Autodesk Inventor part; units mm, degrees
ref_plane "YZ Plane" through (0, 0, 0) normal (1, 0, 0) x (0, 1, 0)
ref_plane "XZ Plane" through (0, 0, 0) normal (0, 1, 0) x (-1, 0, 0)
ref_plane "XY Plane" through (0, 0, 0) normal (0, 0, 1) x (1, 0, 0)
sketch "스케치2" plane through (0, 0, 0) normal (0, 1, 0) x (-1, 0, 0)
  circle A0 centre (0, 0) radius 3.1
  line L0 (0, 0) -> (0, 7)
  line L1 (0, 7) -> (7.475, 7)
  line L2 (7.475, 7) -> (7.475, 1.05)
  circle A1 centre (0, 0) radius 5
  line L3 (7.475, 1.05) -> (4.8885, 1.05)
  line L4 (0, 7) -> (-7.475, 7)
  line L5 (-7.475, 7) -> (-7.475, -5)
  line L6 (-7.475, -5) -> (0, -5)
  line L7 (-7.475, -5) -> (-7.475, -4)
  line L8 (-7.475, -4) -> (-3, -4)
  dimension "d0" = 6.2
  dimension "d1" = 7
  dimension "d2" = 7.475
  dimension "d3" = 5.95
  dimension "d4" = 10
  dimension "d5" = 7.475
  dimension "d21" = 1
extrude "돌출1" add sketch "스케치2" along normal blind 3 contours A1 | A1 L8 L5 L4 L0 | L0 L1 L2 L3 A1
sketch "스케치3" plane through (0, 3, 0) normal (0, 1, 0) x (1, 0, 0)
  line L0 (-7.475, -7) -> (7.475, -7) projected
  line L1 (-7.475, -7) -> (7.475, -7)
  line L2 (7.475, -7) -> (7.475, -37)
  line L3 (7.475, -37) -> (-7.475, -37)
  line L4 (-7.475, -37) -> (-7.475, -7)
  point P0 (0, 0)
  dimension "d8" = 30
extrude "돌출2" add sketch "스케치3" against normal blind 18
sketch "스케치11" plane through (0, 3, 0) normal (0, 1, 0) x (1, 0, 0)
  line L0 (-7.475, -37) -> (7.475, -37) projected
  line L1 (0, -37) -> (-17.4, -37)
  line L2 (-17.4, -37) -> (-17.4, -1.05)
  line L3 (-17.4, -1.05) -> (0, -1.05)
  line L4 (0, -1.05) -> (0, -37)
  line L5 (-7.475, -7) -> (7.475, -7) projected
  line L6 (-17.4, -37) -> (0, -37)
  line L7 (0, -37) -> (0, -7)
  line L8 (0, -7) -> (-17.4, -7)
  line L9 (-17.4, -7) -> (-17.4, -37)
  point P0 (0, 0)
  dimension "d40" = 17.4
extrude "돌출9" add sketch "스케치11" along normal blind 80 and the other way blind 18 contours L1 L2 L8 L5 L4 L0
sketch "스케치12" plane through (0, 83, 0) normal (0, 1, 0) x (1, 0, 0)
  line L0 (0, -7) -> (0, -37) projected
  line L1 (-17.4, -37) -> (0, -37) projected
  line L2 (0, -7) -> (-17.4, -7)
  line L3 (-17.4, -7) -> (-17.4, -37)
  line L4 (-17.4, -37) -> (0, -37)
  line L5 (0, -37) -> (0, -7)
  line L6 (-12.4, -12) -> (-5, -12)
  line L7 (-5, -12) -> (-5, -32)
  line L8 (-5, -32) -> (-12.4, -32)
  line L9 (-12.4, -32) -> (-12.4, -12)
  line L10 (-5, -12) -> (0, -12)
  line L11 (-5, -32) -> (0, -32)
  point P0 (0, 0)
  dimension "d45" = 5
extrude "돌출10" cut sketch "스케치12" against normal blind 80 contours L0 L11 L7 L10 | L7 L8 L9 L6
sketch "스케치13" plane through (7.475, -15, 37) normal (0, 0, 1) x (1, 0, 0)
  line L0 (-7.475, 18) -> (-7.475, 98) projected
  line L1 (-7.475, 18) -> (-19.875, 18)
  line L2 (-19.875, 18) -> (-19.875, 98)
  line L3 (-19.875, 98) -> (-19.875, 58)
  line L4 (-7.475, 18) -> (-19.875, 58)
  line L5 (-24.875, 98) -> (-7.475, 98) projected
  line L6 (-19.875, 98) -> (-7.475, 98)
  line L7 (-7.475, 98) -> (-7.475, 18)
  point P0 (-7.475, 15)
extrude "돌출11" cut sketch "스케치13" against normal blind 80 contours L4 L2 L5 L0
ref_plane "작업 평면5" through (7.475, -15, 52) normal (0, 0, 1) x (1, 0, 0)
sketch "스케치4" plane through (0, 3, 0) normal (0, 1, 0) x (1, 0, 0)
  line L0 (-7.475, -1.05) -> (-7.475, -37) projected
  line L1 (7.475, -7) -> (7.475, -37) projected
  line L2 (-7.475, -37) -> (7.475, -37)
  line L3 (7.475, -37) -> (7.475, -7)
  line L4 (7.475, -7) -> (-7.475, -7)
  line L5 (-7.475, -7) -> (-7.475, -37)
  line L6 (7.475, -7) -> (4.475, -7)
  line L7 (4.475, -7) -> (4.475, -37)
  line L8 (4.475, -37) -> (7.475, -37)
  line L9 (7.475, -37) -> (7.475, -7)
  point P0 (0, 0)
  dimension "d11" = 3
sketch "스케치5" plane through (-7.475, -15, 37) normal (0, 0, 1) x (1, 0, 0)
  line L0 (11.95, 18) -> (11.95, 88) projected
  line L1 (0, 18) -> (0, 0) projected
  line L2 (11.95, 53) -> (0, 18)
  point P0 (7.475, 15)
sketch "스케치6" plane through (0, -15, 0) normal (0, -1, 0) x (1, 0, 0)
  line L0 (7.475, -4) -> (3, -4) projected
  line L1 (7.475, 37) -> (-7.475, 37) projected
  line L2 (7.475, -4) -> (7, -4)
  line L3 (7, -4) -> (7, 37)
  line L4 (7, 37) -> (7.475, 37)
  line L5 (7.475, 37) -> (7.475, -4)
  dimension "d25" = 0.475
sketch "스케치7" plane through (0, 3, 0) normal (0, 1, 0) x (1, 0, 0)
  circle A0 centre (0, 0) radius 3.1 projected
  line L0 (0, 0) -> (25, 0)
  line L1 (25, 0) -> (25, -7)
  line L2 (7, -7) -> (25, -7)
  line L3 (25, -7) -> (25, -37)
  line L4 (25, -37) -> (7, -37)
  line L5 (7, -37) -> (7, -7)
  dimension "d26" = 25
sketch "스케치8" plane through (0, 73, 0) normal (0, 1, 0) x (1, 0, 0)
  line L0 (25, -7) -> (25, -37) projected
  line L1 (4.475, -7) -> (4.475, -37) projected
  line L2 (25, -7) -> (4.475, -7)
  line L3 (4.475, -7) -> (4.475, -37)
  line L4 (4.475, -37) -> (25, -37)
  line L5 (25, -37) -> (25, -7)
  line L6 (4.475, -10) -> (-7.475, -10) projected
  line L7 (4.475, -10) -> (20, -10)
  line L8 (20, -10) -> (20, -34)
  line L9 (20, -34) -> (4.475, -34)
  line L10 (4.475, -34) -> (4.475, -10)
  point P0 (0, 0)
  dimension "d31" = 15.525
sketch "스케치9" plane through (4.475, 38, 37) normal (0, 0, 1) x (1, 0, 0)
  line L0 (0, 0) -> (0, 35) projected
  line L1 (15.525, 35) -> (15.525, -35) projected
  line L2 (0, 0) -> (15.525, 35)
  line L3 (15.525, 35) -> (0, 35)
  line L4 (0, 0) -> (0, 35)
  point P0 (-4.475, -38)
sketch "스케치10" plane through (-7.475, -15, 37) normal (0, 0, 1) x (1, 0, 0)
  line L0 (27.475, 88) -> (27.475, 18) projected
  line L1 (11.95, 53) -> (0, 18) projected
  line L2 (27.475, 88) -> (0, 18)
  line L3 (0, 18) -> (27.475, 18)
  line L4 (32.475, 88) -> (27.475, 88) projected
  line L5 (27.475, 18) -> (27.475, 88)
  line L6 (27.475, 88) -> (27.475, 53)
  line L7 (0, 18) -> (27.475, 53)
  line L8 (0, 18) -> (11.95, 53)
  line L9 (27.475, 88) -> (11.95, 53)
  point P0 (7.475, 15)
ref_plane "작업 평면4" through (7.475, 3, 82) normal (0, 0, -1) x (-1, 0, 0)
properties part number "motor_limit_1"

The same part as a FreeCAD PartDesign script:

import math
import FreeCAD as App
import Part
import Sketcher

V = App.Vector
Q = App.Units.Quantity


def add_polygon(sketch, points):
    """Adds a closed chain of lines whose ends are joined by coincident constraints."""
    first, n = sketch.GeometryCount, len(points)
    for a, b in zip(points, points[1:] + points[:1]):
        sketch.addGeometry(Part.LineSegment(App.Vector(*a, 0), App.Vector(*b, 0)), False)
    for i in range(n):
        sketch.addConstraint(Sketcher.Constraint("Coincident", first + i, 2, first + (i + 1) % n, 1))

doc = App.newDocument("Part")
body = doc.addObject("PartDesign::Body", "Body")

# Sketch on XZ plane
sketch1 = body.newObject("Sketcher::SketchObject", "Sketch")
sketch1.AttachmentSupport = (doc.getObject("XZ_Plane"), [""])
sketch1.MapMode = "FlatFace"
sketch1.addGeometry(Part.LineSegment(V(-4.8885, 1.05, 0), V(-7.475, 1.05, 0)), False)
sketch1.addGeometry(Part.LineSegment(V(-7.475, 1.05, 0), V(-7.475, 7, 0)), False)
sketch1.addGeometry(Part.LineSegment(V(-7.475, 7, 0), V(7.475, 7, 0)), False)
sketch1.addGeometry(Part.LineSegment(V(7.475, 7, 0), V(7.475, -4, 0)), False)
sketch1.addGeometry(Part.LineSegment(V(7.475, -4, 0), V(3, -4, 0)), False)
sketch1.addGeometry(Part.ArcOfCircle(Part.Circle(V(0, 0, 0), V(0, 0, 1), 5), math.radians(167.877631), math.radians(306.869898)), False)
sketch1.addGeometry(Part.Circle(V(0, 0, 0), V(0, 0, 1), 3.1), False)
sketch1.addConstraint(Sketcher.Constraint("Coincident", 0, 2, 1, 1))
sketch1.addConstraint(Sketcher.Constraint("Coincident", 1, 2, 2, 1))
sketch1.addConstraint(Sketcher.Constraint("Coincident", 2, 2, 3, 1))
sketch1.addConstraint(Sketcher.Constraint("Coincident", 3, 2, 4, 1))
sketch1.addConstraint(Sketcher.Constraint("Coincident", 4, 2, 5, 2))
sketch1.addConstraint(Sketcher.Constraint("Coincident", 5, 1, 0, 1))
sketch1.addConstraint(Sketcher.Constraint("Horizontal", 0))
sketch1.addConstraint(Sketcher.Constraint("Vertical", 1))
sketch1.addConstraint(Sketcher.Constraint("Horizontal", 2))
sketch1.addConstraint(Sketcher.Constraint("Vertical", 3))
sketch1.addConstraint(Sketcher.Constraint("Horizontal", 4))
sketch1.addConstraint(Sketcher.Constraint("Coincident", 5, 3, -1, 1))
sketch1.addConstraint(Sketcher.Constraint("Coincident", 6, 3, -1, 1))
sketch1.addConstraint(Sketcher.Constraint("Radius", 5, Q("5 mm")))
sketch1.addConstraint(Sketcher.Constraint("Diameter", 6, Q("6.2 mm")))
sketch1.addConstraint(Sketcher.Constraint("DistanceY", -1, 1, 1, 2, Q("7 mm")))
sketch1.addConstraint(Sketcher.Constraint("DistanceY", 1, 1, 1, 2, Q("5.95 mm")))
sketch1.addConstraint(Sketcher.Constraint("DistanceY", 3, 2, 3, 1, Q("11 mm")))
sketch1.addConstraint(Sketcher.Constraint("DistanceX", 0, 2, -1, 1, Q("7.475 mm")))
sketch1.addConstraint(Sketcher.Constraint("DistanceX", -1, 1, 2, 2, Q("7.475 mm")))
pad1 = body.newObject("PartDesign::Pad", "Pad")
pad1.Profile = sketch1
pad1.Length = 3
pad1.Reversed = True

# Sketch on XZ plane
sketch2 = body.newObject("Sketcher::SketchObject", "Sketch001")
sketch2.AttachmentSupport = (doc.getObject("XZ_Plane"), [""])
sketch2.MapMode = "FlatFace"
sketch2.AttachmentOffset = App.Placement(V(0, 0, -3), App.Rotation())
add_polygon(sketch2, [(7.475, 7), (-7.475, 7), (-7.475, 37), (7.475, 37)])  # lines 0-3
sketch2.addConstraint(Sketcher.Constraint("Horizontal", 0))
sketch2.addConstraint(Sketcher.Constraint("Vertical", 1))
sketch2.addConstraint(Sketcher.Constraint("Horizontal", 2))
sketch2.addConstraint(Sketcher.Constraint("Vertical", 3))
sketch2.addConstraint(Sketcher.Constraint("DistanceY", 1, 1, 1, 2, Q("30 mm")))
sketch2.addConstraint(Sketcher.Constraint("DistanceY", -1, 1, 0, 2, Q("7 mm")))
sketch2.addConstraint(Sketcher.Constraint("DistanceX", 0, 2, 0, 1, Q("14.95 mm")))
sketch2.addConstraint(Sketcher.Constraint("DistanceX", 0, 2, -1, 1, Q("7.475 mm")))
pad2 = body.newObject("PartDesign::Pad", "Pad001")
pad2.Profile = sketch2
pad2.Length = 18

# Sketch on XZ plane
sketch3 = body.newObject("Sketcher::SketchObject", "Sketch002")
sketch3.AttachmentSupport = (doc.getObject("XZ_Plane"), [""])
sketch3.MapMode = "FlatFace"
sketch3.AttachmentOffset = App.Placement(V(0, 0, -3), App.Rotation())
add_polygon(sketch3, [(-17.4, 37), (0, 37), (0, 7), (-17.4, 7)])  # lines 0-3
sketch3.addConstraint(Sketcher.Constraint("Horizontal", 0))
sketch3.addConstraint(Sketcher.Constraint("Vertical", 1))
sketch3.addConstraint(Sketcher.Constraint("Horizontal", 2))
sketch3.addConstraint(Sketcher.Constraint("Vertical", 3))
sketch3.addConstraint(Sketcher.Constraint("PointOnObject", 0, 2, -2))
sketch3.addConstraint(Sketcher.Constraint("DistanceX", 0, 1, 0, 2, Q("17.4 mm")))
sketch3.addConstraint(Sketcher.Constraint("DistanceY", 1, 2, 1, 1, Q("30 mm")))
sketch3.addConstraint(Sketcher.Constraint("DistanceY", -1, 1, 0, 2, Q("37 mm")))
pad3 = body.newObject("PartDesign::Pad", "Pad002")
pad3.Profile = sketch3
pad3.Type = "TwoLengths"
pad3.Length = 80
pad3.Length2 = 18
pad3.Reversed = True

# Sketch on XZ plane
sketch4 = body.newObject("Sketcher::SketchObject", "Sketch003")
sketch4.AttachmentSupport = (doc.getObject("XZ_Plane"), [""])
sketch4.MapMode = "FlatFace"
sketch4.AttachmentOffset = App.Placement(V(0, 0, -83), App.Rotation())
add_polygon(sketch4, [(0, 32), (0, 12), (-12.4, 12), (-12.4, 32)])  # lines 0-3
sketch4.addConstraint(Sketcher.Constraint("Vertical", 0))
sketch4.addConstraint(Sketcher.Constraint("Horizontal", 1))
sketch4.addConstraint(Sketcher.Constraint("Vertical", 2))
sketch4.addConstraint(Sketcher.Constraint("Horizontal", 3))
sketch4.addConstraint(Sketcher.Constraint("PointOnObject", 0, 2, -2))
sketch4.addConstraint(Sketcher.Constraint("DistanceY", 0, 2, 0, 1, Q("20 mm")))
sketch4.addConstraint(Sketcher.Constraint("DistanceX", 1, 2, 1, 1, Q("12.4 mm")))
sketch4.addConstraint(Sketcher.Constraint("DistanceY", -1, 1, 0, 2, Q("12 mm")))
pocket1 = body.newObject("PartDesign::Pocket", "Pocket")
pocket1.Profile = sketch4
pocket1.Length = 80
pocket1.Reversed = True

# Sketch on XY plane
sketch5 = body.newObject("Sketcher::SketchObject", "Sketch004")
sketch5.AttachmentSupport = (doc.getObject("XY_Plane"), [""])
sketch5.MapMode = "FlatFace"
sketch5.AttachmentOffset = App.Placement(V(0, 0, 37), App.Rotation())
add_polygon(sketch5, [(-12.4, 43), (0, 3), (0, 83), (-12.4, 83)])  # lines 0-3
sketch5.addConstraint(Sketcher.Constraint("Vertical", 1))
sketch5.addConstraint(Sketcher.Constraint("Horizontal", 2))
sketch5.addConstraint(Sketcher.Constraint("Vertical", 3))
sketch5.addConstraint(Sketcher.Constraint("PointOnObject", 0, 2, -2))
sketch5.addConstraint(Sketcher.Constraint("DistanceY", 1, 1, 1, 2, Q("80 mm")))
sketch5.addConstraint(Sketcher.Constraint("DistanceY", 3, 2, 3, 1, Q("40 mm")))
sketch5.addConstraint(Sketcher.Constraint("DistanceX", 2, 2, 2, 1, Q("12.4 mm")))
sketch5.addConstraint(Sketcher.Constraint("DistanceY", -1, 1, 0, 2, Q("3 mm")))
pocket2 = body.newObject("PartDesign::Pocket", "Pocket001")
pocket2.Profile = sketch5
pocket2.Length = 80

doc.recompute()
